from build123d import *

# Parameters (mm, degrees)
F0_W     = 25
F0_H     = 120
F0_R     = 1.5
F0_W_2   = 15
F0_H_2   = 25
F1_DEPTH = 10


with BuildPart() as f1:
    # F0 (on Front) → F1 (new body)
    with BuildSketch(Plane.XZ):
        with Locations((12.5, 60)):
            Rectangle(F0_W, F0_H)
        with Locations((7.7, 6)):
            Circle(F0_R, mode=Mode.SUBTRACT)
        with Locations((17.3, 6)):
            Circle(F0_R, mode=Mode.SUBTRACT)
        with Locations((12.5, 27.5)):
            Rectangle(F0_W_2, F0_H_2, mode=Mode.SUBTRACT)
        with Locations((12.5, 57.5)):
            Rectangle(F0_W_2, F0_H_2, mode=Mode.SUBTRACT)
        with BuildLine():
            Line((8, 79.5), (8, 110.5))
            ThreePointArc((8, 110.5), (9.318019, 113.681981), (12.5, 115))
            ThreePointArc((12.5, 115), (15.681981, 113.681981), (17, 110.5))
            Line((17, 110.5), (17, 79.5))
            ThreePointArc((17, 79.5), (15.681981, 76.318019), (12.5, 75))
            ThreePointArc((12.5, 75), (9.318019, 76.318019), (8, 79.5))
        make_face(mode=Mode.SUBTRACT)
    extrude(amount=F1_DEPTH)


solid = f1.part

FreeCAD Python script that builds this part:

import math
import FreeCAD as App
import Part
import Sketcher

V = App.Vector
Q = App.Units.Quantity


def add_polygon(sketch, points):
    """Adds a closed chain of lines whose ends are joined by coincident constraints."""
    first, n = sketch.GeometryCount, len(points)
    for a, b in zip(points, points[1:] + points[:1]):
        sketch.addGeometry(Part.LineSegment(App.Vector(*a, 0), App.Vector(*b, 0)), False)
    for i in range(n):
        sketch.addConstraint(Sketcher.Constraint("Coincident", first + i, 2, first + (i + 1) % n, 1))

doc = App.newDocument("Part")
params = doc.addObject("Spreadsheet::Sheet", "Params")
for row, (alias, value) in enumerate([
    ("sketch1_diameter", "3 mm"),
    ("sketch1_radius", "4.499998 mm"),
    ("sketch1_width", "25 mm"),
    ("sketch1_width2", "15 mm"),
    ("sketch1_height", "120 mm"),
    ("pad1_length", "10 mm"),
], start=1):
    params.set(f"A{row}", alias)
    params.set(f"B{row}", "=" + value)
    params.setAlias(f"B{row}", alias)

body = doc.addObject("PartDesign::Body", "Body")

# Sketch on XZ plane
sketch1 = body.newObject("Sketcher::SketchObject", "Sketch")
sketch1.AttachmentSupport = (doc.getObject("XZ_Plane"), [""])
sketch1.MapMode = "FlatFace"
add_polygon(sketch1, [(0, 120), (0, 0), (25, 0), (25, 120)])  # lines 0-3
sketch1.addGeometry(Part.Circle(V(7.7, 6, 0), V(0, 0, 1), 1.5), False)  # 4
add_polygon(sketch1, [(20, 15), (5, 15), (5, 40), (20, 40)])  # lines 5-8
sketch1.addGeometry(Part.Circle(V(17.3, 6, 0), V(0, 0, 1), 1.5), False)  # 9
add_polygon(sketch1, [(20, 45), (5, 45), (5, 70), (20, 70)])  # lines 10-13
sketch1.addGeometry(Part.ArcOfCircle(Part.Circle(V(12.5, 79.5, 0), V(0, 0, 1), 4.5), math.radians(180), math.radians(270)), False)  # 14
sketch1.addGeometry(Part.LineSegment(V(8, 79.5, 0), V(8, 110.5, 0)), False)  # 15
sketch1.addGeometry(Part.ArcOfCircle(Part.Circle(V(12.5, 110.5, 0), V(0, 0, 1), 4.5), math.radians(90), math.radians(180)), False)  # 16
sketch1.addGeometry(Part.ArcOfCircle(Part.Circle(V(12.5, 110.5, 0), V(0, 0, 1), 4.5), math.radians(0), math.radians(90)), False)  # 17
sketch1.addGeometry(Part.LineSegment(V(17, 110.5, 0), V(17, 79.5, 0)), False)  # 18
sketch1.addGeometry(Part.ArcOfCircle(Part.Circle(V(12.5, 79.5, 0), V(0, 0, 1), 4.5), math.radians(-90), math.radians(0)), False)  # 19
sketch1.addConstraint(Sketcher.Constraint("Tangent", 14, 1, 15, 1))
sketch1.addConstraint(Sketcher.Constraint("Tangent", 15, 2, 16, 2))
sketch1.addConstraint(Sketcher.Constraint("Tangent", 16, 1, 17, 2))
sketch1.addConstraint(Sketcher.Constraint("Tangent", 17, 1, 18, 1))
sketch1.addConstraint(Sketcher.Constraint("Tangent", 18, 2, 19, 2))
sketch1.addConstraint(Sketcher.Constraint("Tangent", 19, 1, 14, 2))
sketch1.addConstraint(Sketcher.Constraint("Vertical", 0))
sketch1.addConstraint(Sketcher.Constraint("Horizontal", 1))
sketch1.addConstraint(Sketcher.Constraint("Vertical", 2))
sketch1.addConstraint(Sketcher.Constraint("Horizontal", 3))
sketch1.addConstraint(Sketcher.Constraint("Horizontal", 5))
sketch1.addConstraint(Sketcher.Constraint("Vertical", 6))
sketch1.addConstraint(Sketcher.Constraint("Horizontal", 7))
sketch1.addConstraint(Sketcher.Constraint("Vertical", 8))
sketch1.addConstraint(Sketcher.Constraint("Horizontal", 10))
sketch1.addConstraint(Sketcher.Constraint("Vertical", 11))
sketch1.addConstraint(Sketcher.Constraint("Horizontal", 12))
sketch1.addConstraint(Sketcher.Constraint("Vertical", 13))
sketch1.addConstraint(Sketcher.Constraint("Vertical", 15))
sketch1.addConstraint(Sketcher.Constraint("Vertical", 18))
sketch1.addConstraint(Sketcher.Constraint("Coincident", 0, 2, -1, 1))
sketch1.addConstraint(Sketcher.Constraint("Equal", 4, 9))
sketch1.addConstraint(Sketcher.Constraint("Equal", 14, 16))
sketch1.addConstraint(Sketcher.Constraint("Equal", 16, 17))
sketch1.addConstraint(Sketcher.Constraint("Horizontal", 4, 3, 9, 3))
sketch1.addConstraint(Sketcher.Constraint("Vertical", 6, 2, 10, 2))
sketch1.addConstraint(Sketcher.Constraint("Vertical", 8, 2, 12, 2))
sketch1.addConstraint(Sketcher.Constraint("Vertical", 19, 3, 16, 1))
sketch1.addConstraint(Sketcher.Constraint("Vertical", 16, 1, 19, 1))
sketch1.addConstraint(Sketcher.Constraint("Equal", 3, 6))
sketch1.addConstraint(Sketcher.Constraint("Equal", 8, 11))
sketch1.addConstraint(Sketcher.Constraint("Diameter", 4, Q("3 mm")))
sketch1.addConstraint(Sketcher.Constraint("Radius", 14, Q("4.499998 mm")))
sketch1.addConstraint(Sketcher.Constraint("DistanceX", 1, 1, 1, 2, Q("25 mm")))
sketch1.addConstraint(Sketcher.Constraint("DistanceX", 5, 2, 5, 1, Q("15 mm")))
sketch1.addConstraint(Sketcher.Constraint("DistanceY", 0, 2, 0, 1, Q("120 mm")))
sketch1.addConstraint(Sketcher.Constraint("DistanceY", 15, 1, 15, 2, Q("31 mm")))
sketch1.addConstraint(Sketcher.Constraint("DistanceY", -1, 1, 4, 3, Q("6 mm")))
sketch1.addConstraint(Sketcher.Constraint("DistanceX", -1, 1, 5, 2, Q("5 mm")))
sketch1.addConstraint(Sketcher.Constraint("DistanceY", -1, 1, 5, 2, Q("15 mm")))
sketch1.addConstraint(Sketcher.Constraint("DistanceY", -1, 1, 10, 2, Q("45 mm")))
sketch1.addConstraint(Sketcher.Constraint("DistanceX", -1, 1, 14, 1, Q("8 mm")))
sketch1.addConstraint(Sketcher.Constraint("DistanceY", -1, 1, 16, 1, Q("115 mm")))
sketch1.addConstraint(Sketcher.Constraint("DistanceX", -1, 1, 4, 3, Q("7.7 mm")))
sketch1.addConstraint(Sketcher.Constraint("DistanceX", -1, 1, 9, 3, Q("17.3 mm")))
sketch1.setExpression("Constraints[43]", "Params.sketch1_diameter")
sketch1.setExpression("Constraints[44]", "Params.sketch1_radius")
sketch1.setExpression("Constraints[45]", "Params.sketch1_width")
sketch1.setExpression("Constraints[46]", "Params.sketch1_width2")
sketch1.setExpression("Constraints[47]", "Params.sketch1_height")
pad1 = body.newObject("PartDesign::Pad", "Pad")
pad1.Profile = sketch1
pad1.setExpression("Length", "Params.pad1_length")

doc.recompute()
